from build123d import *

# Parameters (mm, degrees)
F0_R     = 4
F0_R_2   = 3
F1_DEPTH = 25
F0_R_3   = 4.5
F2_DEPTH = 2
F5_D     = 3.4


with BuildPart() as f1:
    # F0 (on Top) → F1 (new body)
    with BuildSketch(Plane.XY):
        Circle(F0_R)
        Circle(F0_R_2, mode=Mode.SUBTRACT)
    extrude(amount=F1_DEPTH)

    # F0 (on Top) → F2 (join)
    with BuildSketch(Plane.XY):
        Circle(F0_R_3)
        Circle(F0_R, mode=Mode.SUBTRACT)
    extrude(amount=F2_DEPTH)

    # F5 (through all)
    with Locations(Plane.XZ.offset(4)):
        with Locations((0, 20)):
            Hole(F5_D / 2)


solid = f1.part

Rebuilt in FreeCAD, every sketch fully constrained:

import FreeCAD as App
import Part
import Sketcher

V = App.Vector
Q = App.Units.Quantity

doc = App.newDocument("Part")
body = doc.addObject("PartDesign::Body", "Body")

sketch1 = doc.addObject("Sketcher::SketchObject", "Sketch")
body.addObject(sketch1)
sketch1.AttachmentSupport = (doc.XY_Plane, [""])
sketch1.MapMode = "FlatFace"
sketch1.addGeometry([
    Part.Circle(V(0, 0, 0), V(0, 0, 1), 4),
    Part.Circle(V(0, 0, 0), V(0, 0, 1), 3),
], False)
sketch1.addConstraint([
    Sketcher.Constraint("Coincident", 0, 3, -1, 1),
    Sketcher.Constraint("Coincident", 1, 3, -1, 1),
    Sketcher.Constraint("Diameter", 0, Q("8 mm")),
    Sketcher.Constraint("Diameter", 1, Q("6 mm")),
])
pad1 = doc.addObject("PartDesign::Pad", "Pad")
body.addObject(pad1)
pad1.Profile = sketch1
pad1.Length = 25

sketch2 = doc.addObject("Sketcher::SketchObject", "Sketch001")
body.addObject(sketch2)
sketch2.AttachmentSupport = (doc.XY_Plane, [""])
sketch2.MapMode = "FlatFace"
sketch2.addGeometry([
    Part.Circle(V(0, 0, 0), V(0, 0, 1), 4.5),
    Part.Circle(V(0, 0, 0), V(0, 0, 1), 4),
], False)
sketch2.addConstraint([
    Sketcher.Constraint("Coincident", 0, 3, -1, 1),
    Sketcher.Constraint("Coincident", 1, 3, -1, 1),
    Sketcher.Constraint("Diameter", 0, Q("9 mm")),
    Sketcher.Constraint("Diameter", 1, Q("8 mm")),
])
pad2 = doc.addObject("PartDesign::Pad", "Pad001")
body.addObject(pad2)
pad2.Profile = sketch2
pad2.Length = 2

sketch3 = doc.addObject("Sketcher::SketchObject", "Sketch002")
body.addObject(sketch3)
sketch3.AttachmentSupport = (doc.XZ_Plane, [""])
sketch3.MapMode = "FlatFace"
sketch3.AttachmentOffset = App.Placement(V(0, 0, 4), App.Rotation())
sketch3.addGeometry(Part.Circle(V(0, 20, 0), V(0, 0, 1), 1.7), False)
sketch3.addConstraint([
    Sketcher.Constraint("PointOnObject", 0, 3, -2),
    Sketcher.Constraint("Diameter", 0, Q("3.4 mm")),
    Sketcher.Constraint("DistanceY", -1, 1, 0, 3, Q("20 mm")),
])
doc.recompute()
hole = doc.addObject("PartDesign::Hole", "Hole")
body.addObject(hole)
hole.Profile = sketch3
hole.ThreadType = "None"
hole.Diameter = 3.4
hole.DepthType = "ThroughAll"

doc.recompute()
